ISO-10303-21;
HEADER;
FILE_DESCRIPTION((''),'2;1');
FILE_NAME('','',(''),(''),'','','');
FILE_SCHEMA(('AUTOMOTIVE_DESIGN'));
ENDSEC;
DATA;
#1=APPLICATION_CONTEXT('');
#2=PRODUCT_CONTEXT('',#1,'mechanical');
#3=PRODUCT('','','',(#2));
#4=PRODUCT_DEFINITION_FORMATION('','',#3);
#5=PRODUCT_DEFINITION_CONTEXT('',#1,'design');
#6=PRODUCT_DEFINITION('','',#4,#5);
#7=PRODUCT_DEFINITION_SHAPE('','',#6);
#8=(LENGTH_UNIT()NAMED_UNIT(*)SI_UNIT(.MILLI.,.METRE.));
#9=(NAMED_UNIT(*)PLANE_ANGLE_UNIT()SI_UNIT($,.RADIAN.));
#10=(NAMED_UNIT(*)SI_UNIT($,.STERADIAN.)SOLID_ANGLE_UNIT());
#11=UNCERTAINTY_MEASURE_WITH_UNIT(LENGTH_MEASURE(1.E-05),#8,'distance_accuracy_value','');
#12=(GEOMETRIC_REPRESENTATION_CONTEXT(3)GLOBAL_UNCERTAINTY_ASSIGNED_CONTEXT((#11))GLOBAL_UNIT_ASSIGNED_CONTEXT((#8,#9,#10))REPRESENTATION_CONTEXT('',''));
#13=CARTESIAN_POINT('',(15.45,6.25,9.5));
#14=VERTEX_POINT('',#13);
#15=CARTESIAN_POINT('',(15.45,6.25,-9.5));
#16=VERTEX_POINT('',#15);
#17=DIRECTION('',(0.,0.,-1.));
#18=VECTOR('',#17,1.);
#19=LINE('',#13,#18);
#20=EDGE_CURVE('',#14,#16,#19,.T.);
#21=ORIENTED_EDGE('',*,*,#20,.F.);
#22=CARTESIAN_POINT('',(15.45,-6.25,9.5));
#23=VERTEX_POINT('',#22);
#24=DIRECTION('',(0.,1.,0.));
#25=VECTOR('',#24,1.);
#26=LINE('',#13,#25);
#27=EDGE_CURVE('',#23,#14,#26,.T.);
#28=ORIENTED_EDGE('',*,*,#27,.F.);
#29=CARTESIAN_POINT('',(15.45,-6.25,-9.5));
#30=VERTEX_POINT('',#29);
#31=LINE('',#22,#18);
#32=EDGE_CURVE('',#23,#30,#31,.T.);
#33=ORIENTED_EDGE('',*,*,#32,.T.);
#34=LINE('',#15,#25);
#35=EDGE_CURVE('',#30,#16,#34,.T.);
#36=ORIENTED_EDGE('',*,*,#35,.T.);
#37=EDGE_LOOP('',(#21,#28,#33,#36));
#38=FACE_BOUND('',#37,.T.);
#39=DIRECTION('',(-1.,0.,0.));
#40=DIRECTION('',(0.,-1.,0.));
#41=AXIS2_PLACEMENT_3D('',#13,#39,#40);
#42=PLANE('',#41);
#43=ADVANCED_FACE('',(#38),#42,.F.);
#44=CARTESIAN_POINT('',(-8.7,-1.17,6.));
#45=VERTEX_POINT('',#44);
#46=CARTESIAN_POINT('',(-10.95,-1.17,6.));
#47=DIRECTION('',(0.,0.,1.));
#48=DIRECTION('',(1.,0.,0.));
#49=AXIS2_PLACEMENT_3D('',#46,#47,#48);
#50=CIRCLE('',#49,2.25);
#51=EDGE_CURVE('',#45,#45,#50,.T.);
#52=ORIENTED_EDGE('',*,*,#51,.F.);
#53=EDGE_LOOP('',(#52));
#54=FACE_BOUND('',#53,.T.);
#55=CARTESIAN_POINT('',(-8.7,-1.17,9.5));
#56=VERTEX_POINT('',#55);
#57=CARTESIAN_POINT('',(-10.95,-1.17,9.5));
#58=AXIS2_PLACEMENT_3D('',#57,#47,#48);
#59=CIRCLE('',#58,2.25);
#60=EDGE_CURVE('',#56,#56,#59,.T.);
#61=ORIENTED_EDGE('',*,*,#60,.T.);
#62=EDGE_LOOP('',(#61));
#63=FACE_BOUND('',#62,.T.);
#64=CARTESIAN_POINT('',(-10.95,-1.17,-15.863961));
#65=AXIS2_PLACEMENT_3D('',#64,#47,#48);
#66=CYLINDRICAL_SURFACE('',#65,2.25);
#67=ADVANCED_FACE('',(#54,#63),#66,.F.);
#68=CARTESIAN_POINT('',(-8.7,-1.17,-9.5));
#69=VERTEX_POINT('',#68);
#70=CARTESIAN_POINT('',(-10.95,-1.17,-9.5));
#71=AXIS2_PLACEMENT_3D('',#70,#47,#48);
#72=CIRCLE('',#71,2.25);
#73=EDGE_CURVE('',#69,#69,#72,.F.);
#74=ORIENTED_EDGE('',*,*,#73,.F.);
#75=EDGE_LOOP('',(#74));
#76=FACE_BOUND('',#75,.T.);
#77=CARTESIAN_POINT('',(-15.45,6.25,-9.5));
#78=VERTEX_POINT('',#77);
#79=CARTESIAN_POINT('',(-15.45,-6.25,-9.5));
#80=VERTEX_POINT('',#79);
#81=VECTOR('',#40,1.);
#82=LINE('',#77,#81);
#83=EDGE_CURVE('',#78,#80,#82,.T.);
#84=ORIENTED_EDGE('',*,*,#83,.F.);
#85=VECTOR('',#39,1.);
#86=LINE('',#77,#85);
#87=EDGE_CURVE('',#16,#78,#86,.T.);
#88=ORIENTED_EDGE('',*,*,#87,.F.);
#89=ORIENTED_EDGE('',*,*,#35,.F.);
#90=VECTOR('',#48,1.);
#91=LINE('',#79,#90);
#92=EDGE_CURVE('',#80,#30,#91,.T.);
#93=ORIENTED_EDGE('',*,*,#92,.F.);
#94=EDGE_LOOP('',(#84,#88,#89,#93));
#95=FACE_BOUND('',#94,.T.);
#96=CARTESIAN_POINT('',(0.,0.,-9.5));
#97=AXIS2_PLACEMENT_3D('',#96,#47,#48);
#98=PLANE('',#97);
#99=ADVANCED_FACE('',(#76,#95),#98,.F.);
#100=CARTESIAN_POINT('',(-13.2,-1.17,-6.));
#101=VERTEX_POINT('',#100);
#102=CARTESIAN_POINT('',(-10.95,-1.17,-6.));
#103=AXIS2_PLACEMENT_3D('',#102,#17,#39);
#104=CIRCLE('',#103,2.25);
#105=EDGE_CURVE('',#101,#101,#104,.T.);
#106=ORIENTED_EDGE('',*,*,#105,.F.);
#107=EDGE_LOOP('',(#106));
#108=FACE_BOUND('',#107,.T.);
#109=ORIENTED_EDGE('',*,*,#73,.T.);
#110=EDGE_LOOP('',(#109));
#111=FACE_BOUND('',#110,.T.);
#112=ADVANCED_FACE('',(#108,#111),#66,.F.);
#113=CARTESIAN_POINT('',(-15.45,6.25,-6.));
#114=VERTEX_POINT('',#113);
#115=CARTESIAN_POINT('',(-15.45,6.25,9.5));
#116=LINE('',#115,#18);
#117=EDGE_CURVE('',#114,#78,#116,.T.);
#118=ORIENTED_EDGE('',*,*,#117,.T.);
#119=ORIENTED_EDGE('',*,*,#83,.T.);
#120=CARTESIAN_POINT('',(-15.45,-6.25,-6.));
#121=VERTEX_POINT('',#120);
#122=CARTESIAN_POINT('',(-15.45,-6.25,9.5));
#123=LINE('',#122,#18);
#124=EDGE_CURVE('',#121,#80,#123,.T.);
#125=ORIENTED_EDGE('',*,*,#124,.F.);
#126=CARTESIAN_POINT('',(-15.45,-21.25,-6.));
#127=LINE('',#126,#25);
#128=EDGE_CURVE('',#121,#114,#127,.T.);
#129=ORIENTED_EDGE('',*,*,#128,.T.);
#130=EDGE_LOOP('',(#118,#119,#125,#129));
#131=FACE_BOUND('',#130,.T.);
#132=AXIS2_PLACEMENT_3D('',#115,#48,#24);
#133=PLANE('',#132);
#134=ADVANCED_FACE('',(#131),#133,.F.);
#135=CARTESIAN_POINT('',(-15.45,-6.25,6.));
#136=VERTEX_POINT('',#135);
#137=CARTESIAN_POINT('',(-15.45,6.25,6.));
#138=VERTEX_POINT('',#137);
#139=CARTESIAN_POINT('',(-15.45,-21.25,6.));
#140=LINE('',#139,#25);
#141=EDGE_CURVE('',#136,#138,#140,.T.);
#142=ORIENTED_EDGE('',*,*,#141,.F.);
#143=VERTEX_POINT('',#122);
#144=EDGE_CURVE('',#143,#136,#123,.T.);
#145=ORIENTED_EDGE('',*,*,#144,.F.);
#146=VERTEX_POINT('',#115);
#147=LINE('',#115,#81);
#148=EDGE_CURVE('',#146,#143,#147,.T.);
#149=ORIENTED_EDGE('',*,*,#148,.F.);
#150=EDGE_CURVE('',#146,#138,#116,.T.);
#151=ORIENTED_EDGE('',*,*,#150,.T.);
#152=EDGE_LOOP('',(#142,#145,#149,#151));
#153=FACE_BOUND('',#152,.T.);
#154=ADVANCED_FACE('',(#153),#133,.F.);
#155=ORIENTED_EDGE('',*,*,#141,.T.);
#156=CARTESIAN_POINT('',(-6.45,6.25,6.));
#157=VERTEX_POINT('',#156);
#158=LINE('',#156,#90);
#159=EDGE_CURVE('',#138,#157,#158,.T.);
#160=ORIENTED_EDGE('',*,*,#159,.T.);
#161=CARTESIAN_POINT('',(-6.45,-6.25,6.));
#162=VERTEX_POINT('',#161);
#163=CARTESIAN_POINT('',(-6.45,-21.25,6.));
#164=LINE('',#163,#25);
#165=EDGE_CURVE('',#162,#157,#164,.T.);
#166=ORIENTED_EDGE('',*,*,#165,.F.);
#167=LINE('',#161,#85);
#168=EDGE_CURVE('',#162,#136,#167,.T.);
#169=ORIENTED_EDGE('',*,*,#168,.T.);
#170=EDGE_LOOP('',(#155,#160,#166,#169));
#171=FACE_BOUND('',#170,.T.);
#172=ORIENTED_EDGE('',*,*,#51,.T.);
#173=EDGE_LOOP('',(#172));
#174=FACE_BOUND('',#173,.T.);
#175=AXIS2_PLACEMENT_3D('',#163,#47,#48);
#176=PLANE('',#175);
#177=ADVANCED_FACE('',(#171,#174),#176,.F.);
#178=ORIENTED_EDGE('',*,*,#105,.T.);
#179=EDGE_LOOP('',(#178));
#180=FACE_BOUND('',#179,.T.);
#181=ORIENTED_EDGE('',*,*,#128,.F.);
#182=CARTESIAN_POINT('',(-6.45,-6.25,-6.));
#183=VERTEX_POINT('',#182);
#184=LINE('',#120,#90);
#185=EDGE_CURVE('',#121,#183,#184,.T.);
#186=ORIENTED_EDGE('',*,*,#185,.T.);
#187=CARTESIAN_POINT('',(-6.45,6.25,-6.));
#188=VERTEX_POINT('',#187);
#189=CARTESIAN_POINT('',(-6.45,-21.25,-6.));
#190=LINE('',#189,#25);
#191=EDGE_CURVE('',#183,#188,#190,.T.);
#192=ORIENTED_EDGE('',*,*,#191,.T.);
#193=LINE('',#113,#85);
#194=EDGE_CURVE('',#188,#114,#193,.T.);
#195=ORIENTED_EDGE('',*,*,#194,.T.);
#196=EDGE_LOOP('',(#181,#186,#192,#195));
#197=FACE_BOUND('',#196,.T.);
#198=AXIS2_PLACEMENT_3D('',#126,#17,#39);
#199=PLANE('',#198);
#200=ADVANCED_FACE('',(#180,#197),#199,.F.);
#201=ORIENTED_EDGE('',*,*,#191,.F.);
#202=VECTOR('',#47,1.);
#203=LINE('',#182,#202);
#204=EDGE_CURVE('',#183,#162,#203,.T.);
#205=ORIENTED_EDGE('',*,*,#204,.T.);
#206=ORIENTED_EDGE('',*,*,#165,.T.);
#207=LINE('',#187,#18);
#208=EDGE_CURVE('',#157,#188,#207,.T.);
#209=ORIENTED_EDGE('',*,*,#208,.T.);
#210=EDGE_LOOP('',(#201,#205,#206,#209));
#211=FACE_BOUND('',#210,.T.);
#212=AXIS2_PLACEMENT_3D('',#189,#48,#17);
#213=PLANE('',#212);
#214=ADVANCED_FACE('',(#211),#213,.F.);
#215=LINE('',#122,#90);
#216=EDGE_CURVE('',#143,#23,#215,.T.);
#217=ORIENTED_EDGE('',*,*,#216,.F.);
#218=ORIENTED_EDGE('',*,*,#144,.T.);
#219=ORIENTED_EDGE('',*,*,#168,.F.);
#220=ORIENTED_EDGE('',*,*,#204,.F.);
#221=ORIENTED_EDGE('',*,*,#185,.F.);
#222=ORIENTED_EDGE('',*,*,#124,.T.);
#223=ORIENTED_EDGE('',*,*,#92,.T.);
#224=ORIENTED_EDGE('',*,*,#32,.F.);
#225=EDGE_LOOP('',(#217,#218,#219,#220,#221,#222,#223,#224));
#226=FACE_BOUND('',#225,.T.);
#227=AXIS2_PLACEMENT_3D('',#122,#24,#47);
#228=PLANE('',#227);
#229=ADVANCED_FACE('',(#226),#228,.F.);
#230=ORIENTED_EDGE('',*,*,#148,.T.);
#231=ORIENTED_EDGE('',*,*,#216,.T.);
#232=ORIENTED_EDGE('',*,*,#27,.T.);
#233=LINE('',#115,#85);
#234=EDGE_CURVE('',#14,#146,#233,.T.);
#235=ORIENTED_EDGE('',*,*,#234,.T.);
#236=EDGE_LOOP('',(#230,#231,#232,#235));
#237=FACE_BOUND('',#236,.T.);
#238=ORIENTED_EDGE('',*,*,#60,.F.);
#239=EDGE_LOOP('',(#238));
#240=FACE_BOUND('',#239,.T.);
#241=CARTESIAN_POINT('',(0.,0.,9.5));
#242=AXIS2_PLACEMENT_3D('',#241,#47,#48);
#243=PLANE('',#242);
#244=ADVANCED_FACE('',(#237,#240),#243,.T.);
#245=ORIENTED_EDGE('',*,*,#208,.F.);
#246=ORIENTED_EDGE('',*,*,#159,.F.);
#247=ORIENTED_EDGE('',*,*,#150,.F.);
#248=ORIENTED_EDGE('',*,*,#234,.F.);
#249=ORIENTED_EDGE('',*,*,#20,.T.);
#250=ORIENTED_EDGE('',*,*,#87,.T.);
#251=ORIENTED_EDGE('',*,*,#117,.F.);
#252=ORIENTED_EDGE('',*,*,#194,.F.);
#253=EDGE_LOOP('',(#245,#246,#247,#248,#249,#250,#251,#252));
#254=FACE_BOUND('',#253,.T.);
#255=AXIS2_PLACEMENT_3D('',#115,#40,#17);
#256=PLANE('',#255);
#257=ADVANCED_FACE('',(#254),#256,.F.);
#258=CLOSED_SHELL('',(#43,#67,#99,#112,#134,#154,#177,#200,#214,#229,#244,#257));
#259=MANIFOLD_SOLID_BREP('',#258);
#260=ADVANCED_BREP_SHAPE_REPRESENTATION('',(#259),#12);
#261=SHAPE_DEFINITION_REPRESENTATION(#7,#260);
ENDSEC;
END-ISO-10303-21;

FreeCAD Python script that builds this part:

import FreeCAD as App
import Part
import Sketcher

V = App.Vector
Q = App.Units.Quantity

doc = App.newDocument("Part")
params = doc.addObject("Spreadsheet::Sheet", "Params")
for row, (alias, value) in enumerate([
    ("sketch1_width", "30.9 mm"),
    ("sketch1_height", "12.5 mm"),
    ("pad1_length", "19 mm"),
    ("sketch2_width", "9 mm"),
    ("sketch2_height", "12 mm"),
    ("pocket1_length", "12.5 mm"),
    ("sketch3_diameter", "4.5 mm"),
    ("pocket2_length", "19 mm"),
], start=1):
    params.set(f"A{row}", alias)
    params.set(f"B{row}", "=" + value)
    params.setAlias(f"B{row}", alias)

body = doc.addObject("PartDesign::Body", "Body")

# Sketch on XY plane
sketch1 = body.newObject("Sketcher::SketchObject", "Sketch")
sketch1.AttachmentSupport = (doc.getObject("XY_Plane"), [""])
sketch1.MapMode = "FlatFace"
sketch1.addGeometry(Part.LineSegment(V(-15.45, 6.25, 0), V(-15.45, -6.25, 0)), False)
sketch1.addGeometry(Part.LineSegment(V(-15.45, -6.25, 0), V(15.45, -6.25, 0)), False)
sketch1.addGeometry(Part.LineSegment(V(15.45, -6.25, 0), V(15.45, 6.25, 0)), False)
sketch1.addGeometry(Part.LineSegment(V(15.45, 6.25, 0), V(-15.45, 6.25, 0)), False)
sketch1.addConstraint(Sketcher.Constraint("Coincident", 0, 2, 1, 1))
sketch1.addConstraint(Sketcher.Constraint("Coincident", 1, 2, 2, 1))
sketch1.addConstraint(Sketcher.Constraint("Coincident", 2, 2, 3, 1))
sketch1.addConstraint(Sketcher.Constraint("Coincident", 3, 2, 0, 1))
sketch1.addConstraint(Sketcher.Constraint("Vertical", 0))
sketch1.addConstraint(Sketcher.Constraint("Horizontal", 1))
sketch1.addConstraint(Sketcher.Constraint("Vertical", 2))
sketch1.addConstraint(Sketcher.Constraint("Horizontal", 3))
sketch1.addConstraint(Sketcher.Constraint("Symmetric", 0, 2, 2, 2, -1, 1))
sketch1.addConstraint(Sketcher.Constraint("DistanceX", 1, 1, 1, 2, Q("30.9 mm")))
sketch1.addConstraint(Sketcher.Constraint("DistanceY", 0, 2, 0, 1, Q("12.5 mm")))
sketch1.setExpression("Constraints[9]", "Params.sketch1_width")
sketch1.setExpression("Constraints[10]", "Params.sketch1_height")
pad1 = body.newObject("PartDesign::Pad", "Pad")
pad1.Profile = sketch1
pad1.setExpression("Length", "Params.pad1_length")
pad1.Midplane = True

# Sketch on XZ plane
sketch2 = body.newObject("Sketcher::SketchObject", "Sketch001")
sketch2.AttachmentSupport = (doc.getObject("XZ_Plane"), [""])
sketch2.MapMode = "FlatFace"
sketch2.AttachmentOffset = App.Placement(V(0, 0, -6.25), App.Rotation())
sketch2.addGeometry(Part.LineSegment(V(-15.45, -6, 0), V(-15.45, 6, 0)), False)
sketch2.addGeometry(Part.LineSegment(V(-15.45, 6, 0), V(-6.45, 6, 0)), False)
sketch2.addGeometry(Part.LineSegment(V(-6.45, 6, 0), V(-6.45, -6, 0)), False)
sketch2.addGeometry(Part.LineSegment(V(-6.45, -6, 0), V(-15.45, -6, 0)), False)
sketch2.addConstraint(Sketcher.Constraint("Coincident", 0, 2, 1, 1))
sketch2.addConstraint(Sketcher.Constraint("Coincident", 1, 2, 2, 1))
sketch2.addConstraint(Sketcher.Constraint("Coincident", 2, 2, 3, 1))
sketch2.addConstraint(Sketcher.Constraint("Coincident", 3, 2, 0, 1))
sketch2.addConstraint(Sketcher.Constraint("Vertical", 0))
sketch2.addConstraint(Sketcher.Constraint("Horizontal", 1))
sketch2.addConstraint(Sketcher.Constraint("Vertical", 2))
sketch2.addConstraint(Sketcher.Constraint("Horizontal", 3))
sketch2.addConstraint(Sketcher.Constraint("DistanceX", 1, 1, 1, 2, Q("9 mm")))
sketch2.addConstraint(Sketcher.Constraint("DistanceY", 0, 1, 0, 2, Q("12 mm")))
sketch2.addConstraint(Sketcher.Constraint("DistanceY", -1, 1, 0, 2, Q("6 mm")))
sketch2.addConstraint(Sketcher.Constraint("DistanceX", 0, 2, -1, 1, Q("15.45 mm")))
sketch2.setExpression("Constraints[8]", "Params.sketch2_width")
sketch2.setExpression("Constraints[9]", "Params.sketch2_height")
pocket1 = body.newObject("PartDesign::Pocket", "Pocket")
pocket1.Profile = sketch2
pocket1.setExpression("Length", "Params.pocket1_length")
pocket1.Reversed = True

# Sketch on XY plane
sketch3 = body.newObject("Sketcher::SketchObject", "Sketch002")
sketch3.AttachmentSupport = (doc.getObject("XY_Plane"), [""])
sketch3.MapMode = "FlatFace"
sketch3.AttachmentOffset = App.Placement(V(0, 0, 9.5), App.Rotation())
sketch3.addGeometry(Part.Circle(V(-10.95, -1.17, 0), V(0, 0, 1), 2.25), False)
sketch3.addConstraint(Sketcher.Constraint("Diameter", 0, Q("4.5 mm")))
sketch3.addConstraint(Sketcher.Constraint("DistanceX", 0, 3, -1, 1, Q("10.95 mm")))
sketch3.addConstraint(Sketcher.Constraint("DistanceY", 0, 3, -1, 1, Q("1.17 mm")))
sketch3.setExpression("Constraints[0]", "Params.sketch3_diameter")
pocket2 = body.newObject("PartDesign::Pocket", "Pocket001")
pocket2.Profile = sketch3
pocket2.setExpression("Length", "Params.pocket2_length")

doc.recompute()
